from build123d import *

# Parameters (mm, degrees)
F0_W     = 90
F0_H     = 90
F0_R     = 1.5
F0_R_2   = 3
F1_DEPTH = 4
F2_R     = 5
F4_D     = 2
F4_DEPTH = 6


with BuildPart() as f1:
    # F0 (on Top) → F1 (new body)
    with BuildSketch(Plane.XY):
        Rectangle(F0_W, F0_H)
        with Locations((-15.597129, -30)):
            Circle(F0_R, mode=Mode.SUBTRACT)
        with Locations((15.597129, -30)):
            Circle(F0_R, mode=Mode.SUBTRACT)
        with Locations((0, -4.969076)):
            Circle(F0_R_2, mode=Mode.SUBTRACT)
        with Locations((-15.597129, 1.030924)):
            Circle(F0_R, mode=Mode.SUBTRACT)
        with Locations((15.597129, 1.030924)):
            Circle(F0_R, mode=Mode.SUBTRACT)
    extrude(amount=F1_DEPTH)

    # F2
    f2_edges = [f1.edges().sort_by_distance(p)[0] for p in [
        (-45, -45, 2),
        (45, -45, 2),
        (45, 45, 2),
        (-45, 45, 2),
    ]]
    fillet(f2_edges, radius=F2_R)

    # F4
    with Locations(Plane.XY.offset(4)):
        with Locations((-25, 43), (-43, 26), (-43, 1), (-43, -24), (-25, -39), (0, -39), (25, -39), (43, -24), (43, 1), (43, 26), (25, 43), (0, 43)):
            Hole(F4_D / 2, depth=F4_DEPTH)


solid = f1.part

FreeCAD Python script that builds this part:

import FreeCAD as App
import Part
import Sketcher
from FreeCAD import Vector


def edges_at(feature, points):
    """Names of the edges that pass closest to the given points."""
    edges = feature.Shape.Edges
    near = lambda p: min(range(len(edges)), key=lambda i: edges[i].distToShape(Part.Vertex(*p))[0])
    return sorted({f"Edge{near(p) + 1}" for p in points})

doc = App.newDocument("Part")
params = doc.addObject("Spreadsheet::Sheet", "Params")
for row, (alias, value) in enumerate([
    ("sketch1_diameter", "3 mm"),
    ("sketch1_diameter2", "6 mm"),
    ("sketch1_width", "90 mm"),
    ("pad1_length", "4 mm"),
    ("fillet_radius", "5 mm"),
    ("sketch2_diameter", "2 mm"),
    ("hole_diameter", "2 mm"),
    ("hole_depth", "6 mm"),
], start=1):
    params.set(f"A{row}", alias)
    params.set(f"B{row}", "=" + value)
    params.setAlias(f"B{row}", alias)

body = doc.addObject("PartDesign::Body", "Body")

sketch1 = doc.addObject("Sketcher::SketchObject", "Sketch")
body.addObject(sketch1)
sketch1.AttachmentSupport = (doc.XY_Plane, [""])
sketch1.MapMode = "FlatFace"
sketch1.addGeometry([
    Part.LineSegment(Vector(-45, 45, 0), Vector(-45, -45, 0)),
    Part.LineSegment(Vector(-45, -45, 0), Vector(45, -45, 0)),
    Part.LineSegment(Vector(45, -45, 0), Vector(45, 45, 0)),
    Part.LineSegment(Vector(45, 45, 0), Vector(-45, 45, 0)),
    Part.Circle(Vector(-15.6, -30, 0), Vector(0, 0, 1), 1.5),
    Part.Circle(Vector(15.6, -30, 0), Vector(0, 0, 1), 1.5),
    Part.Circle(Vector(-15.6, 1, 0), Vector(0, 0, 1), 1.5),
    Part.Circle(Vector(0, -5, 0), Vector(0, 0, 1), 3),
    Part.Circle(Vector(15.6, 1, 0), Vector(0, 0, 1), 1.5),
], False)
sketch1.addConstraint([
    Sketcher.Constraint("Coincident", 0, 2, 1, 1),
    Sketcher.Constraint("Coincident", 1, 2, 2, 1),
    Sketcher.Constraint("Coincident", 2, 2, 3, 1),
    Sketcher.Constraint("Coincident", 3, 2, 0, 1),
    Sketcher.Constraint("Vertical", 0),
    Sketcher.Constraint("Horizontal", 1),
    Sketcher.Constraint("Vertical", 2),
    Sketcher.Constraint("Horizontal", 3),
    Sketcher.Constraint("Equal", 4, 5),
    Sketcher.Constraint("Equal", 5, 6),
    Sketcher.Constraint("Equal", 6, 8),
    Sketcher.Constraint("Symmetric", 0, 2, 2, 2, -1, 1),
    Sketcher.Constraint("Symmetric", 4, 3, 5, 3, -2),
    Sketcher.Constraint("Symmetric", 6, 3, 8, 3, -2),
    Sketcher.Constraint("PointOnObject", 7, 3, -2),
    Sketcher.Constraint("Vertical", 4, 3, 6, 3),
    Sketcher.Constraint("Equal", 3, 0),
    Sketcher.Constraint("Diameter", 4, 3.0),
    Sketcher.Constraint("Diameter", 7, 6.0),
    Sketcher.Constraint("DistanceX", 1, 1, 1, 2, 90.0),
    Sketcher.Constraint("DistanceY", 4, 3, -1, 1, 30.0),
    Sketcher.Constraint("DistanceY", 7, 3, 6, 3, 6.0),
    Sketcher.Constraint("DistanceX", 4, 3, -1, 1, 15.597129),
    Sketcher.Constraint("DistanceY", -1, 1, 6, 3, 1.030924),
])
sketch1.setExpression("Constraints[17]", "Params.sketch1_diameter")
sketch1.setExpression("Constraints[18]", "Params.sketch1_diameter2")
sketch1.setExpression("Constraints[19]", "Params.sketch1_width")
pad1 = doc.addObject("PartDesign::Pad", "Pad")
body.addObject(pad1)
pad1.Profile = sketch1
pad1.setExpression("Length", "Params.pad1_length")
doc.recompute()

fillet = doc.addObject("PartDesign::Fillet", "Fillet")
body.addObject(fillet)
fillet.Base = (pad1, edges_at(pad1, [
    (-45, -45, 2),
    (45, -45, 2),
    (45, 45, 2),
    (-45, 45, 2),
]))
fillet.setExpression("Radius", "Params.fillet_radius")

sketch2 = doc.addObject("Sketcher::SketchObject", "Sketch001")
body.addObject(sketch2)
sketch2.AttachmentSupport = (doc.XY_Plane, [""])
sketch2.MapMode = "FlatFace"
sketch2.AttachmentOffset = App.Placement(Vector(0, 0, 4), App.Rotation())
sketch2.addGeometry([
    Part.Circle(Vector(-25, 43, 0), Vector(0, 0, 1), 1),
    Part.Circle(Vector(-43, 26, 0), Vector(0, 0, 1), 1),
    Part.Circle(Vector(-43, 1, 0), Vector(0, 0, 1), 1),
    Part.Circle(Vector(-43, -24, 0), Vector(0, 0, 1), 1),
    Part.Circle(Vector(-25, -39, 0), Vector(0, 0, 1), 1),
    Part.Circle(Vector(0, -39, 0), Vector(0, 0, 1), 1),
    Part.Circle(Vector(25, -39, 0), Vector(0, 0, 1), 1),
    Part.Circle(Vector(43, -24, 0), Vector(0, 0, 1), 1),
    Part.Circle(Vector(43, 1, 0), Vector(0, 0, 1), 1),
    Part.Circle(Vector(43, 26, 0), Vector(0, 0, 1), 1),
    Part.Circle(Vector(25, 43, 0), Vector(0, 0, 1), 1),
    Part.Circle(Vector(0, 43, 0), Vector(0, 0, 1), 1),
], False)
sketch2.addConstraint([
    Sketcher.Constraint("Equal", 0, 1),
    Sketcher.Constraint("Equal", 1, 2),
    Sketcher.Constraint("Equal", 2, 3),
    Sketcher.Constraint("Equal", 3, 4),
    Sketcher.Constraint("Equal", 4, 5),
    Sketcher.Constraint("Equal", 5, 6),
    Sketcher.Constraint("Equal", 6, 7),
    Sketcher.Constraint("Equal", 7, 8),
    Sketcher.Constraint("Equal", 8, 9),
    Sketcher.Constraint("Equal", 9, 10),
    Sketcher.Constraint("Equal", 10, 11),
    Sketcher.Constraint("Symmetric", 4, 3, 6, 3, -2),
    Sketcher.Constraint("Symmetric", 3, 3, 7, 3, -2),
    Sketcher.Constraint("Symmetric", 2, 3, 8, 3, -2),
    Sketcher.Constraint("Symmetric", 1, 3, 9, 3, -2),
    Sketcher.Constraint("Symmetric", 0, 3, 10, 3, -2),
    Sketcher.Constraint("PointOnObject", 5, 3, -2),
    Sketcher.Constraint("PointOnObject", 11, 3, -2),
    Sketcher.Constraint("Horizontal", 4, 3, 5, 3),
    Sketcher.Constraint("Horizontal", 10, 3, 11, 3),
    Sketcher.Constraint("Vertical", 1, 3, 2, 3),
    Sketcher.Constraint("Vertical", 2, 3, 3, 3),
    Sketcher.Constraint("Vertical", 0, 3, 4, 3),
    Sketcher.Constraint("Diameter", 0, 2.0),
    Sketcher.Constraint("DistanceX", 0, 3, -1, 1, 25.0),
    Sketcher.Constraint("DistanceY", -1, 1, 0, 3, 43.0),
    Sketcher.Constraint("DistanceX", 1, 3, -1, 1, 43.0),
    Sketcher.Constraint("DistanceY", -1, 1, 1, 3, 26.0),
    Sketcher.Constraint("DistanceY", -1, 1, 2, 3, 1.0),
    Sketcher.Constraint("DistanceY", 3, 3, -1, 1, 24.0),
    Sketcher.Constraint("DistanceY", 4, 3, -1, 1, 39.0),
])
sketch2.setExpression("Constraints[23]", "Params.sketch2_diameter")
doc.recompute()
hole = doc.addObject("PartDesign::Hole", "Hole")
body.addObject(hole)
hole.Profile = sketch2
hole.ThreadType = "None"
hole.setExpression("Diameter", "Params.hole_diameter")
hole.DepthType = "Dimension"
hole.setExpression("Depth", "Params.hole_depth")
hole.DrillPoint = "Flat"

doc.recompute()
